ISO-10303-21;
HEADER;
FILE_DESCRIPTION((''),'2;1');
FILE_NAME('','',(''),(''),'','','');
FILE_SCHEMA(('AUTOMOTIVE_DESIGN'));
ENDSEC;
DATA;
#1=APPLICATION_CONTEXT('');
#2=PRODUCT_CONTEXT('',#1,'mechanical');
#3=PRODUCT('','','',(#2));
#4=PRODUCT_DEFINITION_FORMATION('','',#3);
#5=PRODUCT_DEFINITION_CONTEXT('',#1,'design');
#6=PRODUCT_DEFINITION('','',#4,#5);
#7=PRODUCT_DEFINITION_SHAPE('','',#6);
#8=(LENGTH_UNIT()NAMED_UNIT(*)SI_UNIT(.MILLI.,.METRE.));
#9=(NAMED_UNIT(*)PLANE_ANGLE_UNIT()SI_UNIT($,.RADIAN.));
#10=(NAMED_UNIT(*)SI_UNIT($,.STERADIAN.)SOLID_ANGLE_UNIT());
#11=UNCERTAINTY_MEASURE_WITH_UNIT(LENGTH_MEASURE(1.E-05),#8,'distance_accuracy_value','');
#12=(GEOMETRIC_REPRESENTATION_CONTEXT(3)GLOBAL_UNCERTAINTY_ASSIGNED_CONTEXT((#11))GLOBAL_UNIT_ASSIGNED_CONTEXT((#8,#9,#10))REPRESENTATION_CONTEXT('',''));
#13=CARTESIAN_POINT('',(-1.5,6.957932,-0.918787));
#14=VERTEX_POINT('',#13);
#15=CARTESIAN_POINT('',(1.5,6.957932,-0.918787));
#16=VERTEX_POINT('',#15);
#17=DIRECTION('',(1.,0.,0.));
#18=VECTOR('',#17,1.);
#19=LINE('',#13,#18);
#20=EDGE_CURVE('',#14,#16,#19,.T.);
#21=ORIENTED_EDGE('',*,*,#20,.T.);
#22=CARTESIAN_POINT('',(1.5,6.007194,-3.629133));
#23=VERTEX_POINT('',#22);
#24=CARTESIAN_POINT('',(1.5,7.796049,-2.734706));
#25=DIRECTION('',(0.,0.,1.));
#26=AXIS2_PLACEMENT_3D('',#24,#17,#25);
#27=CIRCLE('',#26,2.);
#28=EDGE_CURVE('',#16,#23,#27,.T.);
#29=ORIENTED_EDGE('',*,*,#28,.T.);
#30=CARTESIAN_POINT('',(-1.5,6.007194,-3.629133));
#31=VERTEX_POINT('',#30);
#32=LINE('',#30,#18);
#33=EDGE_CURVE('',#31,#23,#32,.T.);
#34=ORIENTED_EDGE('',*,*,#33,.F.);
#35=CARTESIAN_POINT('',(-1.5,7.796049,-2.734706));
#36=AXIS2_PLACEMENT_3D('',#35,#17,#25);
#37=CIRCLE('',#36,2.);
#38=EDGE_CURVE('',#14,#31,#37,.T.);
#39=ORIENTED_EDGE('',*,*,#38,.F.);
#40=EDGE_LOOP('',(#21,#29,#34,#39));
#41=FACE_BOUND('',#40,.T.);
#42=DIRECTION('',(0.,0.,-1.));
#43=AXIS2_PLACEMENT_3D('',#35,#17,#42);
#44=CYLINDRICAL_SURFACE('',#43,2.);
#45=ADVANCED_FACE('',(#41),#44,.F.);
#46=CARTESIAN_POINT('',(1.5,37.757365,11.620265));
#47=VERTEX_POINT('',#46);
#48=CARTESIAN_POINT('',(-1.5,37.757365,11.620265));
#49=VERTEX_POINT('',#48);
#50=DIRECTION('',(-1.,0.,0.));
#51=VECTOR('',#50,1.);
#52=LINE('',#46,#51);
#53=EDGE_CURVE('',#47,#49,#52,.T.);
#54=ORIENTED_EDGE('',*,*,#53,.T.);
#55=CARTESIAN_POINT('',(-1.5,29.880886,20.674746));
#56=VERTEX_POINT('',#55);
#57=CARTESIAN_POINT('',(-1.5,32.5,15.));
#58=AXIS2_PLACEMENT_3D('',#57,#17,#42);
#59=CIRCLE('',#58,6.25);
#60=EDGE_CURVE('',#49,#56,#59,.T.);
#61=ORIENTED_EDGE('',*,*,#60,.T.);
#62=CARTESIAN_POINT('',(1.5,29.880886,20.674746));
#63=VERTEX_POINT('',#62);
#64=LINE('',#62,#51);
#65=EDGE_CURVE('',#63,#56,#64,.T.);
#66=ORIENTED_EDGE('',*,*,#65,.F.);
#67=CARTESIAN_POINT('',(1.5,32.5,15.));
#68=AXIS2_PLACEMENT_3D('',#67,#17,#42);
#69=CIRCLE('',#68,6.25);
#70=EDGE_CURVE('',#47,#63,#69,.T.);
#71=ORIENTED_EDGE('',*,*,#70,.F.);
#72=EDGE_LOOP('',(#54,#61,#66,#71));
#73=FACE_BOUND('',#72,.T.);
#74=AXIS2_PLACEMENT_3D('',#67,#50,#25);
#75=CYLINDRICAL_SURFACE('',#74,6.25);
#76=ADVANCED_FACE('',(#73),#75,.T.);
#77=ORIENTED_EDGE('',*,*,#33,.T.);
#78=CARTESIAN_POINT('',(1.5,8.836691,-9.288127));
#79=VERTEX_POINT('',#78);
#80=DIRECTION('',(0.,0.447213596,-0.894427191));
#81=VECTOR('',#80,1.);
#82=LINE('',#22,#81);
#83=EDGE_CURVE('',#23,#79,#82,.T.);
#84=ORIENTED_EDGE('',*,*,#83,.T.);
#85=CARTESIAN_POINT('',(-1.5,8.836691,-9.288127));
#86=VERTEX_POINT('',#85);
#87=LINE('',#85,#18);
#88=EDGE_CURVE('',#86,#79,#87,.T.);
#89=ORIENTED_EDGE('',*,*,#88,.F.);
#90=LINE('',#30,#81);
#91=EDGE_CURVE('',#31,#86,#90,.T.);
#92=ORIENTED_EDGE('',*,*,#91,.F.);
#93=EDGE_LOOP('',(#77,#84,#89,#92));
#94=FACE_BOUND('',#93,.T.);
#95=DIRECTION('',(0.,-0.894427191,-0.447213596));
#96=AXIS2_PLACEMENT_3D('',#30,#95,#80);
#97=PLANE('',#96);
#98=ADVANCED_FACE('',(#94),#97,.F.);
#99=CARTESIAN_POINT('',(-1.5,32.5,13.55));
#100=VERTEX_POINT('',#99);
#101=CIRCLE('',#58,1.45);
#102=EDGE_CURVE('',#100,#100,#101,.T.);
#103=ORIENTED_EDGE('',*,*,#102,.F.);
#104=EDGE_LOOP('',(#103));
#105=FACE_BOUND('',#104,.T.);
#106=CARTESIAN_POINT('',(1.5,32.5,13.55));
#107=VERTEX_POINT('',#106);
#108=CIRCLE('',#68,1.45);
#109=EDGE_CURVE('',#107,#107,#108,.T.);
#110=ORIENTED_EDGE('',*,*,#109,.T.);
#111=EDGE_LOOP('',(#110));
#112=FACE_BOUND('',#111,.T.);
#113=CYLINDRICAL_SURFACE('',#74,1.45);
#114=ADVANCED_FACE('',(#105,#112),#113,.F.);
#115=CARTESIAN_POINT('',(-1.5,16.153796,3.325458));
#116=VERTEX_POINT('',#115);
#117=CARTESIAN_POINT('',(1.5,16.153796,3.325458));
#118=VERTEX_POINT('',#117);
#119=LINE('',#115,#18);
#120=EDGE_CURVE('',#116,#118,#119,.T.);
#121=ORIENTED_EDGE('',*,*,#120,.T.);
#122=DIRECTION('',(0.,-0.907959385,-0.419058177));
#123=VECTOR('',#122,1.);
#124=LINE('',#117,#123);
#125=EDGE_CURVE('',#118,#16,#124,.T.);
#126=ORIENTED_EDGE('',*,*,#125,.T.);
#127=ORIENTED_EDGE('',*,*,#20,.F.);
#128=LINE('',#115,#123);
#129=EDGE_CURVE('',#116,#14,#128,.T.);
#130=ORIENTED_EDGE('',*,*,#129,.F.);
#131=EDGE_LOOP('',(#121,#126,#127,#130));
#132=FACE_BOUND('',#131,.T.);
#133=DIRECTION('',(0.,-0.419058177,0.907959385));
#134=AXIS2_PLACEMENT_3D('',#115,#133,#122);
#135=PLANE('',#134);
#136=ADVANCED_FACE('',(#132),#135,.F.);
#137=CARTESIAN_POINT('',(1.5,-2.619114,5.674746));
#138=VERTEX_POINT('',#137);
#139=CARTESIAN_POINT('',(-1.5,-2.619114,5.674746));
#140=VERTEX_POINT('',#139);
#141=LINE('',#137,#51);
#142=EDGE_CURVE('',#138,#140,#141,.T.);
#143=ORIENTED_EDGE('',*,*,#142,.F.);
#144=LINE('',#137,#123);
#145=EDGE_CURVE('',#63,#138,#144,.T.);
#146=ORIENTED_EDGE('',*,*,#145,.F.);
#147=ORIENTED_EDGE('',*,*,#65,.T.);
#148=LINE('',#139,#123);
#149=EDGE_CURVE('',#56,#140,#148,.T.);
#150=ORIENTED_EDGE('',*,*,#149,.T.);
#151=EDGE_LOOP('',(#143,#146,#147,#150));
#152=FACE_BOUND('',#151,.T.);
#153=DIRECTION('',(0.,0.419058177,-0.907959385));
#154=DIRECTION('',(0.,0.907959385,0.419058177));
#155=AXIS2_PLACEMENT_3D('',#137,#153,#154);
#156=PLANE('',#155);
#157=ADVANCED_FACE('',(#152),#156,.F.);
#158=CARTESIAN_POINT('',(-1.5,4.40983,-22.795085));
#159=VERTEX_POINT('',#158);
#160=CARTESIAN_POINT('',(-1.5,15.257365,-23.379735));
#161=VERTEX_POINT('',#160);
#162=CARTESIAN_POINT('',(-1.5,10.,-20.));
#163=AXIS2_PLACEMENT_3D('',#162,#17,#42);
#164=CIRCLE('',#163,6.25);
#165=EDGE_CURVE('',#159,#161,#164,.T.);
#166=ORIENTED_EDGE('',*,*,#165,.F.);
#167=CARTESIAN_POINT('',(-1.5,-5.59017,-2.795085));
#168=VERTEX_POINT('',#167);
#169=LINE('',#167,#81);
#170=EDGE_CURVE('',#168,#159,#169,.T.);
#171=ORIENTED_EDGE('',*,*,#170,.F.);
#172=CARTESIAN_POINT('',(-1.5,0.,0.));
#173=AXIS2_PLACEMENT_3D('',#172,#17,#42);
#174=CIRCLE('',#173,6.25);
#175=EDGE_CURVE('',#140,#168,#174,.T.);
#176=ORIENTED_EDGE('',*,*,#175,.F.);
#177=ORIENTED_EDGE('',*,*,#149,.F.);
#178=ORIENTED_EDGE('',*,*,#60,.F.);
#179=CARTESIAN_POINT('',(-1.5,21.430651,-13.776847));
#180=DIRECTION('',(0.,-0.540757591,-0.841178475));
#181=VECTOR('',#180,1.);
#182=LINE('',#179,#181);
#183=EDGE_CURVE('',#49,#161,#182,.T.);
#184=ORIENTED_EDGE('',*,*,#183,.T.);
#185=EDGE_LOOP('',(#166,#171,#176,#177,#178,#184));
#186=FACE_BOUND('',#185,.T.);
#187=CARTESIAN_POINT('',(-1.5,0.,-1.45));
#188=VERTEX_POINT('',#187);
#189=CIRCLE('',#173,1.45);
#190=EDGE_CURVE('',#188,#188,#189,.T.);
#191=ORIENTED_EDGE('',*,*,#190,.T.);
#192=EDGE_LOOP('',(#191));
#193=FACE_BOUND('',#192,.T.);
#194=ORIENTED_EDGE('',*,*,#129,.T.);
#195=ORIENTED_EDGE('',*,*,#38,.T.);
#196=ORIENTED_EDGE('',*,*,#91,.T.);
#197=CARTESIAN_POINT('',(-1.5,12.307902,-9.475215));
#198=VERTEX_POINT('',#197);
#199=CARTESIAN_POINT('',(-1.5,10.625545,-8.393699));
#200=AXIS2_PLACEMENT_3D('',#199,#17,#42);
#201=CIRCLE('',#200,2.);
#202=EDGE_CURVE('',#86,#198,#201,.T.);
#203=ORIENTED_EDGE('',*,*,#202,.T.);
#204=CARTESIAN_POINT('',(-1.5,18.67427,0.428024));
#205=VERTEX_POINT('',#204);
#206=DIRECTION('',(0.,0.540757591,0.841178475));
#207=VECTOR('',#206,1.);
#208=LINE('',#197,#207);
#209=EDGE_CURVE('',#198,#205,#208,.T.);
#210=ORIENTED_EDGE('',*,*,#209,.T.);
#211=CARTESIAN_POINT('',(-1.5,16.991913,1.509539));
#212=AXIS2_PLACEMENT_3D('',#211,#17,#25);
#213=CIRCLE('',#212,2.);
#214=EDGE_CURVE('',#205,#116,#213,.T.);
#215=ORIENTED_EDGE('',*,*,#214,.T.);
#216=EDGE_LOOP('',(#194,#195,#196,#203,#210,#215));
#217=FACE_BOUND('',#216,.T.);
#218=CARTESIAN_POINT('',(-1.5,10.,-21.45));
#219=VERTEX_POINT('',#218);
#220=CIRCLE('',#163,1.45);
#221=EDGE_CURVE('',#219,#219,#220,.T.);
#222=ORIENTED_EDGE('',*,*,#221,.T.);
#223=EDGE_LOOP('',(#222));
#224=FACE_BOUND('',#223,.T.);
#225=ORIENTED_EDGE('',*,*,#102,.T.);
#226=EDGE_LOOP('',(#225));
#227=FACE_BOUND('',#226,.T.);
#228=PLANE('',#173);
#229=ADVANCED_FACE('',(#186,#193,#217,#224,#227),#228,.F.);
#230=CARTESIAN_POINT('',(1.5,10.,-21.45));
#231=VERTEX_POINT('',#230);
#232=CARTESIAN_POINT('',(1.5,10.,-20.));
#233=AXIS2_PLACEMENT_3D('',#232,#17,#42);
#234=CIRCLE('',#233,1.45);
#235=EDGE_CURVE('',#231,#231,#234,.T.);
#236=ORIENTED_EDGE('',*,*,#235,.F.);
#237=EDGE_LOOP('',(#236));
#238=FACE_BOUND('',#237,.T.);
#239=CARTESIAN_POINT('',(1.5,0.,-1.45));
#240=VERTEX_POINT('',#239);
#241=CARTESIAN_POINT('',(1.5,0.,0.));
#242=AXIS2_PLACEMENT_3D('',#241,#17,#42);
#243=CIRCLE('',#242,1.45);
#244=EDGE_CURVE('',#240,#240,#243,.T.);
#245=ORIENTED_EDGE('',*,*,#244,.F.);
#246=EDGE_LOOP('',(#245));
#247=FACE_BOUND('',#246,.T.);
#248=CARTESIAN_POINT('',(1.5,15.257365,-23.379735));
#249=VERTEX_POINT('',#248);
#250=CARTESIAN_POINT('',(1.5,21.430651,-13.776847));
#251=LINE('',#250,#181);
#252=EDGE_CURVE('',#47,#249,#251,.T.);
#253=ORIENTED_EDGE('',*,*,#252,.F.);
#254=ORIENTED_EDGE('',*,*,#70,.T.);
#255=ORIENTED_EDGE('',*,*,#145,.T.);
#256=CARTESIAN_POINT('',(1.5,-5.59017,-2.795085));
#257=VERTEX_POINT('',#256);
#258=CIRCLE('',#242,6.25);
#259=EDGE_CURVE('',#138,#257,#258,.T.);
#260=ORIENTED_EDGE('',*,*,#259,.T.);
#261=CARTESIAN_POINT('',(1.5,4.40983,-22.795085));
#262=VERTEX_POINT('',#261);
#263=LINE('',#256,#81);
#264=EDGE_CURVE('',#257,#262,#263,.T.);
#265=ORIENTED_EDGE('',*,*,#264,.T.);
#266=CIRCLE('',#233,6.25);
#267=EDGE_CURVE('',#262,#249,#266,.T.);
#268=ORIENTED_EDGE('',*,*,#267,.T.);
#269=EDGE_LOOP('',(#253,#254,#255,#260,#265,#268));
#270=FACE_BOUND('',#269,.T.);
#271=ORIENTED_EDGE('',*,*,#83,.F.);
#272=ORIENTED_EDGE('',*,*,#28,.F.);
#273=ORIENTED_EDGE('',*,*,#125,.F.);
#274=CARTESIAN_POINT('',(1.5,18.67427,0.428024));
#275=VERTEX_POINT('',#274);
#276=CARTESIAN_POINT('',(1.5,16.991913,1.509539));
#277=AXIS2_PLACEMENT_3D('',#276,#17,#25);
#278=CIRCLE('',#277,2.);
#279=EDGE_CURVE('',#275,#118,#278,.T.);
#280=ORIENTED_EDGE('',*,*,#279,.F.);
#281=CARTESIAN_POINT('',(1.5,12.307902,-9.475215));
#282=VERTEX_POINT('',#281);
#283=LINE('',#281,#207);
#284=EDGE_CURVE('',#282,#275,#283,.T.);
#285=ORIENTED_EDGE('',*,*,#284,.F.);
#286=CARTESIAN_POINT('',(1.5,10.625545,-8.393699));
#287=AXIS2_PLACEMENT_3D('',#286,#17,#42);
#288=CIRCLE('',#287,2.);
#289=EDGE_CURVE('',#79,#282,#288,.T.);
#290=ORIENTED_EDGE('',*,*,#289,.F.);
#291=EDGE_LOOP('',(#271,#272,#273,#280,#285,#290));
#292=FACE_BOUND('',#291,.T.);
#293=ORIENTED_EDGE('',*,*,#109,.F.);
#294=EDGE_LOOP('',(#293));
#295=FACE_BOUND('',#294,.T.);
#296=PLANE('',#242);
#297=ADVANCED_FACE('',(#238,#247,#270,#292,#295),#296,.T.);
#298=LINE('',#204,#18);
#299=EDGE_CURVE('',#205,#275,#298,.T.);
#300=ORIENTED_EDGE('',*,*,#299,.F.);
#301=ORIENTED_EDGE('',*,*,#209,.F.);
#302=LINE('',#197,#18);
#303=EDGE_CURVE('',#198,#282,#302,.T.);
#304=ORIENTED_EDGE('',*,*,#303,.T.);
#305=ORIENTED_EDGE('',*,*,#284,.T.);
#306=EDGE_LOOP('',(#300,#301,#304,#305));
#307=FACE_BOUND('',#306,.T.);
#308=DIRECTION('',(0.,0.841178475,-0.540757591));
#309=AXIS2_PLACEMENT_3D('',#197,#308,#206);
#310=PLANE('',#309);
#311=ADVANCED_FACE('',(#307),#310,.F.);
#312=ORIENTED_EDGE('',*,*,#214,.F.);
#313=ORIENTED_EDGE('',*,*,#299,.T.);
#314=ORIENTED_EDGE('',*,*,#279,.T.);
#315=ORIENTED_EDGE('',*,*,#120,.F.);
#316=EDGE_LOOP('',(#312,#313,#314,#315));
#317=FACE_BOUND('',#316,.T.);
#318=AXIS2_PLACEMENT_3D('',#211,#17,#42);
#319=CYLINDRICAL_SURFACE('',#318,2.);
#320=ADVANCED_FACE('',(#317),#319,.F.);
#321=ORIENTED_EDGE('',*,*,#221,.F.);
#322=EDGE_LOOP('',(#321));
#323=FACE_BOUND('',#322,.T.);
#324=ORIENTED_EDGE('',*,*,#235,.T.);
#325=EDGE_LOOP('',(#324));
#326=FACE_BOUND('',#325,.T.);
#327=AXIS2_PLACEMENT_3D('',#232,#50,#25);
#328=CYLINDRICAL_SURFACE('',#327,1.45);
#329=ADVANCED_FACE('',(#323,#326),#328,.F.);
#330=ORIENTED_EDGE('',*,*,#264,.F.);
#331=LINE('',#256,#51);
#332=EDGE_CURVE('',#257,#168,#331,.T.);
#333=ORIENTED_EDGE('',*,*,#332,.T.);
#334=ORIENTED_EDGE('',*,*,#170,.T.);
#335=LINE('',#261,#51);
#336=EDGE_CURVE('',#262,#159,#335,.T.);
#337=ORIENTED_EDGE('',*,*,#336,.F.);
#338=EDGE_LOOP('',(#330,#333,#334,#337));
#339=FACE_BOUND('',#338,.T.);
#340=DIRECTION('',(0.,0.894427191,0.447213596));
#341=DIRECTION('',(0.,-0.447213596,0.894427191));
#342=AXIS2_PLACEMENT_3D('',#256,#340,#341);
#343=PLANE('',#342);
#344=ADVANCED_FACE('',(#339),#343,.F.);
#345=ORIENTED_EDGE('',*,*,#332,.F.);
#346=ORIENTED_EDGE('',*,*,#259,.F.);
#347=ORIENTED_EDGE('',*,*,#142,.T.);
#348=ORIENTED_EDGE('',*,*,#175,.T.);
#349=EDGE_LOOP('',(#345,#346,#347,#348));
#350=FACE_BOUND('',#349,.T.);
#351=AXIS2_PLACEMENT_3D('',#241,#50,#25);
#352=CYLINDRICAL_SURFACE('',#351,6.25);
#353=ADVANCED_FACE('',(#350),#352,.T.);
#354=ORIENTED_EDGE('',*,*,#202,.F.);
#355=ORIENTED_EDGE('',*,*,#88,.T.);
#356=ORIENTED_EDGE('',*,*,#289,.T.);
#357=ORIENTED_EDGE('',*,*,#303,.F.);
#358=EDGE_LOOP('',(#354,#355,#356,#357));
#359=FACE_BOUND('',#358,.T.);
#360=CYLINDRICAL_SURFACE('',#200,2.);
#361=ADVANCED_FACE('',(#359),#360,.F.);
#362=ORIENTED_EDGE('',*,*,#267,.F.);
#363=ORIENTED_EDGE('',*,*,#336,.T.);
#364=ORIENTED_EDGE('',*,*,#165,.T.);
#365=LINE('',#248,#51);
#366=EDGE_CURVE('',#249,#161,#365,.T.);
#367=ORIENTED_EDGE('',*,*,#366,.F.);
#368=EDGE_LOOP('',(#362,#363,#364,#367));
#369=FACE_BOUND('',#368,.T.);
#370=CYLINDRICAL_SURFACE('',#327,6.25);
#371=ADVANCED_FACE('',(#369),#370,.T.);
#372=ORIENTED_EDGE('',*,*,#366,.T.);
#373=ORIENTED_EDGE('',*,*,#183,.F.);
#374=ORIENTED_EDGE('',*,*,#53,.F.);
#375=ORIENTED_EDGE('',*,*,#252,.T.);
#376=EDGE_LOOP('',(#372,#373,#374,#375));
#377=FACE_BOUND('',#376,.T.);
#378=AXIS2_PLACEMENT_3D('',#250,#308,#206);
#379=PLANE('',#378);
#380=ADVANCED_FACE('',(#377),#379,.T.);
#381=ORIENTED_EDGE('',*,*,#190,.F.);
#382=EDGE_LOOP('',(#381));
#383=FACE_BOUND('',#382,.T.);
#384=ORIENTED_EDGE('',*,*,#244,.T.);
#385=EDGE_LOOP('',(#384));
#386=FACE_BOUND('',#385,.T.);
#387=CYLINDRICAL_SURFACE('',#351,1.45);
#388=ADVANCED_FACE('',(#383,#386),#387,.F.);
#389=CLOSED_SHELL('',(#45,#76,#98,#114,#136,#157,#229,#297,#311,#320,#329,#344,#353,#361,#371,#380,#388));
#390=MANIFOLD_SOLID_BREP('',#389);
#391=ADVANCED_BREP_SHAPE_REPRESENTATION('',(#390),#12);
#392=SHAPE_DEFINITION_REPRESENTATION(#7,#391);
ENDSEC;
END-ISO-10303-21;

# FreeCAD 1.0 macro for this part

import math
import FreeCAD as App
import Part
import Sketcher

doc = App.newDocument("Part")
body = doc.addObject("PartDesign::Body", "Body")

# Sketch on YZ plane
sketch1 = body.newObject("Sketcher::SketchObject", "Sketch")
sketch1.AttachmentSupport = (doc.getObject("YZ_Plane"), [""])
sketch1.MapMode = "FlatFace"
sketch1.addGeometry(Part.LineSegment(App.Vector(15.3, -23.4, 0), App.Vector(37.8, 11.6, 0)), False)
sketch1.addGeometry(Part.ArcOfCircle(Part.Circle(App.Vector(32.5, 15, 0), App.Vector(0, 0, 1), 6.2), math.radians(-33), math.radians(115)), False)
sketch1.addGeometry(Part.LineSegment(App.Vector(29.9, 20.7, 0), App.Vector(-2.6, 5.7, 0)), False)
sketch1.addGeometry(Part.ArcOfCircle(Part.Circle(App.Vector(0, 0, 0), App.Vector(0, 0, 1), 6.2), math.radians(115), math.radians(207)), False)
sketch1.addGeometry(Part.LineSegment(App.Vector(-5.6, -2.8, 0), App.Vector(4.4, -22.8, 0)), False)
sketch1.addGeometry(Part.ArcOfCircle(Part.Circle(App.Vector(10, -20, 0), App.Vector(0, 0, 1), 6.2), math.radians(-153), math.radians(-33)), False)
sketch1.addGeometry(Part.Circle(App.Vector(0, 0, 0), App.Vector(0, 0, 1), 1.4), False)
sketch1.addGeometry(Part.Circle(App.Vector(10, -20, 0), App.Vector(0, 0, 1), 1.4), False)
sketch1.addGeometry(Part.Circle(App.Vector(32.5, 15, 0), App.Vector(0, 0, 1), 1.4), False)
sketch1.addConstraint(Sketcher.Constraint("Tangent", 0, 2, 1, 1))
sketch1.addConstraint(Sketcher.Constraint("Tangent", 1, 2, 2, 1))
sketch1.addConstraint(Sketcher.Constraint("Tangent", 2, 2, 3, 1))
sketch1.addConstraint(Sketcher.Constraint("Tangent", 3, 2, 4, 1))
sketch1.addConstraint(Sketcher.Constraint("Tangent", 4, 2, 5, 1))
sketch1.addConstraint(Sketcher.Constraint("Tangent", 5, 2, 0, 1))
sketch1.addConstraint(Sketcher.Constraint("Coincident", 3, 3, -1, 1))
sketch1.addConstraint(Sketcher.Constraint("Coincident", 6, 3, -1, 1))
sketch1.addConstraint(Sketcher.Constraint("Coincident", 7, 3, 5, 3))
sketch1.addConstraint(Sketcher.Constraint("Coincident", 8, 3, 1, 3))
sketch1.addConstraint(Sketcher.Constraint("Equal", 1, 3))
sketch1.addConstraint(Sketcher.Constraint("Equal", 3, 5))
sketch1.addConstraint(Sketcher.Constraint("Equal", 6, 7))
sketch1.addConstraint(Sketcher.Constraint("Equal", 7, 8))
sketch1.addConstraint(Sketcher.Constraint("Diameter", 6, 2.9))
sketch1.addConstraint(Sketcher.Constraint("Radius", 1, 6.25))
sketch1.addConstraint(Sketcher.Constraint("DistanceY", -1, 1, 1, 3, 15.0))
sketch1.addConstraint(Sketcher.Constraint("DistanceX", -1, 1, 5, 3, 10.0))
sketch1.addConstraint(Sketcher.Constraint("DistanceY", 5, 3, -1, 1, 20.0))
sketch1.addConstraint(Sketcher.Constraint("DistanceX", -1, 1, 1, 3, 32.5))
pad1 = body.newObject("PartDesign::Pad", "Pad")
pad1.Profile = sketch1
pad1.Length = 3
pad1.Midplane = True

# Sketch on YZ plane
sketch2 = body.newObject("Sketcher::SketchObject", "Sketch001")
sketch2.AttachmentSupport = (doc.getObject("YZ_Plane"), [""])
sketch2.MapMode = "FlatFace"
sketch2.AttachmentOffset = App.Placement(App.Vector(0, 0, 1.5), App.Rotation())
sketch2.addGeometry(Part.LineSegment(App.Vector(6, -3.6, 0), App.Vector(8.8, -9.3, 0)), False)
sketch2.addGeometry(Part.ArcOfCircle(Part.Circle(App.Vector(10.6, -8.4, 0), App.Vector(0, 0, 1), 2), math.radians(-153), math.radians(-33)), False)
sketch2.addGeometry(Part.LineSegment(App.Vector(12.3, -9.5, 0), App.Vector(18.7, 0.4, 0)), False)
sketch2.addGeometry(Part.ArcOfCircle(Part.Circle(App.Vector(17, 1.5, 0), App.Vector(0, 0, 1), 2), math.radians(-33), math.radians(115)), False)
sketch2.addGeometry(Part.LineSegment(App.Vector(16.2, 3.3, 0), App.Vector(7, -0.9, 0)), False)
sketch2.addGeometry(Part.ArcOfCircle(Part.Circle(App.Vector(7.8, -2.7, 0), App.Vector(0, 0, 1), 2), math.radians(115), math.radians(207)), False)
sketch2.addConstraint(Sketcher.Constraint("Tangent", 0, 2, 1, 1))
sketch2.addConstraint(Sketcher.Constraint("Tangent", 1, 2, 2, 1))
sketch2.addConstraint(Sketcher.Constraint("Tangent", 2, 2, 3, 1))
sketch2.addConstraint(Sketcher.Constraint("Tangent", 3, 2, 4, 1))
sketch2.addConstraint(Sketcher.Constraint("Tangent", 4, 2, 5, 1))
sketch2.addConstraint(Sketcher.Constraint("Tangent", 5, 2, 0, 1))
sketch2.addConstraint(Sketcher.Constraint("Equal", 1, 3))
sketch2.addConstraint(Sketcher.Constraint("Equal", 3, 5))
sketch2.addConstraint(Sketcher.Constraint("Radius", 1, 2.0))
sketch2.addConstraint(Sketcher.Constraint("DistanceY", 1, 3, -1, 1, 8.393699))
sketch2.addConstraint(Sketcher.Constraint("DistanceY", -1, 1, 3, 3, 1.509539))
sketch2.addConstraint(Sketcher.Constraint("DistanceX", -1, 1, 5, 3, 7.796049))
sketch2.addConstraint(Sketcher.Constraint("DistanceX", -1, 1, 0, 2, 8.836691))
sketch2.addConstraint(Sketcher.Constraint("DistanceX", -1, 1, 2, 2, 18.67427))
sketch2.addConstraint(Sketcher.Constraint("DistanceY", 0, 2, 5, 3, 6.55342))
pocket1 = body.newObject("PartDesign::Pocket", "Pocket")
pocket1.Profile = sketch2
pocket1.Length = 3

doc.recompute()
